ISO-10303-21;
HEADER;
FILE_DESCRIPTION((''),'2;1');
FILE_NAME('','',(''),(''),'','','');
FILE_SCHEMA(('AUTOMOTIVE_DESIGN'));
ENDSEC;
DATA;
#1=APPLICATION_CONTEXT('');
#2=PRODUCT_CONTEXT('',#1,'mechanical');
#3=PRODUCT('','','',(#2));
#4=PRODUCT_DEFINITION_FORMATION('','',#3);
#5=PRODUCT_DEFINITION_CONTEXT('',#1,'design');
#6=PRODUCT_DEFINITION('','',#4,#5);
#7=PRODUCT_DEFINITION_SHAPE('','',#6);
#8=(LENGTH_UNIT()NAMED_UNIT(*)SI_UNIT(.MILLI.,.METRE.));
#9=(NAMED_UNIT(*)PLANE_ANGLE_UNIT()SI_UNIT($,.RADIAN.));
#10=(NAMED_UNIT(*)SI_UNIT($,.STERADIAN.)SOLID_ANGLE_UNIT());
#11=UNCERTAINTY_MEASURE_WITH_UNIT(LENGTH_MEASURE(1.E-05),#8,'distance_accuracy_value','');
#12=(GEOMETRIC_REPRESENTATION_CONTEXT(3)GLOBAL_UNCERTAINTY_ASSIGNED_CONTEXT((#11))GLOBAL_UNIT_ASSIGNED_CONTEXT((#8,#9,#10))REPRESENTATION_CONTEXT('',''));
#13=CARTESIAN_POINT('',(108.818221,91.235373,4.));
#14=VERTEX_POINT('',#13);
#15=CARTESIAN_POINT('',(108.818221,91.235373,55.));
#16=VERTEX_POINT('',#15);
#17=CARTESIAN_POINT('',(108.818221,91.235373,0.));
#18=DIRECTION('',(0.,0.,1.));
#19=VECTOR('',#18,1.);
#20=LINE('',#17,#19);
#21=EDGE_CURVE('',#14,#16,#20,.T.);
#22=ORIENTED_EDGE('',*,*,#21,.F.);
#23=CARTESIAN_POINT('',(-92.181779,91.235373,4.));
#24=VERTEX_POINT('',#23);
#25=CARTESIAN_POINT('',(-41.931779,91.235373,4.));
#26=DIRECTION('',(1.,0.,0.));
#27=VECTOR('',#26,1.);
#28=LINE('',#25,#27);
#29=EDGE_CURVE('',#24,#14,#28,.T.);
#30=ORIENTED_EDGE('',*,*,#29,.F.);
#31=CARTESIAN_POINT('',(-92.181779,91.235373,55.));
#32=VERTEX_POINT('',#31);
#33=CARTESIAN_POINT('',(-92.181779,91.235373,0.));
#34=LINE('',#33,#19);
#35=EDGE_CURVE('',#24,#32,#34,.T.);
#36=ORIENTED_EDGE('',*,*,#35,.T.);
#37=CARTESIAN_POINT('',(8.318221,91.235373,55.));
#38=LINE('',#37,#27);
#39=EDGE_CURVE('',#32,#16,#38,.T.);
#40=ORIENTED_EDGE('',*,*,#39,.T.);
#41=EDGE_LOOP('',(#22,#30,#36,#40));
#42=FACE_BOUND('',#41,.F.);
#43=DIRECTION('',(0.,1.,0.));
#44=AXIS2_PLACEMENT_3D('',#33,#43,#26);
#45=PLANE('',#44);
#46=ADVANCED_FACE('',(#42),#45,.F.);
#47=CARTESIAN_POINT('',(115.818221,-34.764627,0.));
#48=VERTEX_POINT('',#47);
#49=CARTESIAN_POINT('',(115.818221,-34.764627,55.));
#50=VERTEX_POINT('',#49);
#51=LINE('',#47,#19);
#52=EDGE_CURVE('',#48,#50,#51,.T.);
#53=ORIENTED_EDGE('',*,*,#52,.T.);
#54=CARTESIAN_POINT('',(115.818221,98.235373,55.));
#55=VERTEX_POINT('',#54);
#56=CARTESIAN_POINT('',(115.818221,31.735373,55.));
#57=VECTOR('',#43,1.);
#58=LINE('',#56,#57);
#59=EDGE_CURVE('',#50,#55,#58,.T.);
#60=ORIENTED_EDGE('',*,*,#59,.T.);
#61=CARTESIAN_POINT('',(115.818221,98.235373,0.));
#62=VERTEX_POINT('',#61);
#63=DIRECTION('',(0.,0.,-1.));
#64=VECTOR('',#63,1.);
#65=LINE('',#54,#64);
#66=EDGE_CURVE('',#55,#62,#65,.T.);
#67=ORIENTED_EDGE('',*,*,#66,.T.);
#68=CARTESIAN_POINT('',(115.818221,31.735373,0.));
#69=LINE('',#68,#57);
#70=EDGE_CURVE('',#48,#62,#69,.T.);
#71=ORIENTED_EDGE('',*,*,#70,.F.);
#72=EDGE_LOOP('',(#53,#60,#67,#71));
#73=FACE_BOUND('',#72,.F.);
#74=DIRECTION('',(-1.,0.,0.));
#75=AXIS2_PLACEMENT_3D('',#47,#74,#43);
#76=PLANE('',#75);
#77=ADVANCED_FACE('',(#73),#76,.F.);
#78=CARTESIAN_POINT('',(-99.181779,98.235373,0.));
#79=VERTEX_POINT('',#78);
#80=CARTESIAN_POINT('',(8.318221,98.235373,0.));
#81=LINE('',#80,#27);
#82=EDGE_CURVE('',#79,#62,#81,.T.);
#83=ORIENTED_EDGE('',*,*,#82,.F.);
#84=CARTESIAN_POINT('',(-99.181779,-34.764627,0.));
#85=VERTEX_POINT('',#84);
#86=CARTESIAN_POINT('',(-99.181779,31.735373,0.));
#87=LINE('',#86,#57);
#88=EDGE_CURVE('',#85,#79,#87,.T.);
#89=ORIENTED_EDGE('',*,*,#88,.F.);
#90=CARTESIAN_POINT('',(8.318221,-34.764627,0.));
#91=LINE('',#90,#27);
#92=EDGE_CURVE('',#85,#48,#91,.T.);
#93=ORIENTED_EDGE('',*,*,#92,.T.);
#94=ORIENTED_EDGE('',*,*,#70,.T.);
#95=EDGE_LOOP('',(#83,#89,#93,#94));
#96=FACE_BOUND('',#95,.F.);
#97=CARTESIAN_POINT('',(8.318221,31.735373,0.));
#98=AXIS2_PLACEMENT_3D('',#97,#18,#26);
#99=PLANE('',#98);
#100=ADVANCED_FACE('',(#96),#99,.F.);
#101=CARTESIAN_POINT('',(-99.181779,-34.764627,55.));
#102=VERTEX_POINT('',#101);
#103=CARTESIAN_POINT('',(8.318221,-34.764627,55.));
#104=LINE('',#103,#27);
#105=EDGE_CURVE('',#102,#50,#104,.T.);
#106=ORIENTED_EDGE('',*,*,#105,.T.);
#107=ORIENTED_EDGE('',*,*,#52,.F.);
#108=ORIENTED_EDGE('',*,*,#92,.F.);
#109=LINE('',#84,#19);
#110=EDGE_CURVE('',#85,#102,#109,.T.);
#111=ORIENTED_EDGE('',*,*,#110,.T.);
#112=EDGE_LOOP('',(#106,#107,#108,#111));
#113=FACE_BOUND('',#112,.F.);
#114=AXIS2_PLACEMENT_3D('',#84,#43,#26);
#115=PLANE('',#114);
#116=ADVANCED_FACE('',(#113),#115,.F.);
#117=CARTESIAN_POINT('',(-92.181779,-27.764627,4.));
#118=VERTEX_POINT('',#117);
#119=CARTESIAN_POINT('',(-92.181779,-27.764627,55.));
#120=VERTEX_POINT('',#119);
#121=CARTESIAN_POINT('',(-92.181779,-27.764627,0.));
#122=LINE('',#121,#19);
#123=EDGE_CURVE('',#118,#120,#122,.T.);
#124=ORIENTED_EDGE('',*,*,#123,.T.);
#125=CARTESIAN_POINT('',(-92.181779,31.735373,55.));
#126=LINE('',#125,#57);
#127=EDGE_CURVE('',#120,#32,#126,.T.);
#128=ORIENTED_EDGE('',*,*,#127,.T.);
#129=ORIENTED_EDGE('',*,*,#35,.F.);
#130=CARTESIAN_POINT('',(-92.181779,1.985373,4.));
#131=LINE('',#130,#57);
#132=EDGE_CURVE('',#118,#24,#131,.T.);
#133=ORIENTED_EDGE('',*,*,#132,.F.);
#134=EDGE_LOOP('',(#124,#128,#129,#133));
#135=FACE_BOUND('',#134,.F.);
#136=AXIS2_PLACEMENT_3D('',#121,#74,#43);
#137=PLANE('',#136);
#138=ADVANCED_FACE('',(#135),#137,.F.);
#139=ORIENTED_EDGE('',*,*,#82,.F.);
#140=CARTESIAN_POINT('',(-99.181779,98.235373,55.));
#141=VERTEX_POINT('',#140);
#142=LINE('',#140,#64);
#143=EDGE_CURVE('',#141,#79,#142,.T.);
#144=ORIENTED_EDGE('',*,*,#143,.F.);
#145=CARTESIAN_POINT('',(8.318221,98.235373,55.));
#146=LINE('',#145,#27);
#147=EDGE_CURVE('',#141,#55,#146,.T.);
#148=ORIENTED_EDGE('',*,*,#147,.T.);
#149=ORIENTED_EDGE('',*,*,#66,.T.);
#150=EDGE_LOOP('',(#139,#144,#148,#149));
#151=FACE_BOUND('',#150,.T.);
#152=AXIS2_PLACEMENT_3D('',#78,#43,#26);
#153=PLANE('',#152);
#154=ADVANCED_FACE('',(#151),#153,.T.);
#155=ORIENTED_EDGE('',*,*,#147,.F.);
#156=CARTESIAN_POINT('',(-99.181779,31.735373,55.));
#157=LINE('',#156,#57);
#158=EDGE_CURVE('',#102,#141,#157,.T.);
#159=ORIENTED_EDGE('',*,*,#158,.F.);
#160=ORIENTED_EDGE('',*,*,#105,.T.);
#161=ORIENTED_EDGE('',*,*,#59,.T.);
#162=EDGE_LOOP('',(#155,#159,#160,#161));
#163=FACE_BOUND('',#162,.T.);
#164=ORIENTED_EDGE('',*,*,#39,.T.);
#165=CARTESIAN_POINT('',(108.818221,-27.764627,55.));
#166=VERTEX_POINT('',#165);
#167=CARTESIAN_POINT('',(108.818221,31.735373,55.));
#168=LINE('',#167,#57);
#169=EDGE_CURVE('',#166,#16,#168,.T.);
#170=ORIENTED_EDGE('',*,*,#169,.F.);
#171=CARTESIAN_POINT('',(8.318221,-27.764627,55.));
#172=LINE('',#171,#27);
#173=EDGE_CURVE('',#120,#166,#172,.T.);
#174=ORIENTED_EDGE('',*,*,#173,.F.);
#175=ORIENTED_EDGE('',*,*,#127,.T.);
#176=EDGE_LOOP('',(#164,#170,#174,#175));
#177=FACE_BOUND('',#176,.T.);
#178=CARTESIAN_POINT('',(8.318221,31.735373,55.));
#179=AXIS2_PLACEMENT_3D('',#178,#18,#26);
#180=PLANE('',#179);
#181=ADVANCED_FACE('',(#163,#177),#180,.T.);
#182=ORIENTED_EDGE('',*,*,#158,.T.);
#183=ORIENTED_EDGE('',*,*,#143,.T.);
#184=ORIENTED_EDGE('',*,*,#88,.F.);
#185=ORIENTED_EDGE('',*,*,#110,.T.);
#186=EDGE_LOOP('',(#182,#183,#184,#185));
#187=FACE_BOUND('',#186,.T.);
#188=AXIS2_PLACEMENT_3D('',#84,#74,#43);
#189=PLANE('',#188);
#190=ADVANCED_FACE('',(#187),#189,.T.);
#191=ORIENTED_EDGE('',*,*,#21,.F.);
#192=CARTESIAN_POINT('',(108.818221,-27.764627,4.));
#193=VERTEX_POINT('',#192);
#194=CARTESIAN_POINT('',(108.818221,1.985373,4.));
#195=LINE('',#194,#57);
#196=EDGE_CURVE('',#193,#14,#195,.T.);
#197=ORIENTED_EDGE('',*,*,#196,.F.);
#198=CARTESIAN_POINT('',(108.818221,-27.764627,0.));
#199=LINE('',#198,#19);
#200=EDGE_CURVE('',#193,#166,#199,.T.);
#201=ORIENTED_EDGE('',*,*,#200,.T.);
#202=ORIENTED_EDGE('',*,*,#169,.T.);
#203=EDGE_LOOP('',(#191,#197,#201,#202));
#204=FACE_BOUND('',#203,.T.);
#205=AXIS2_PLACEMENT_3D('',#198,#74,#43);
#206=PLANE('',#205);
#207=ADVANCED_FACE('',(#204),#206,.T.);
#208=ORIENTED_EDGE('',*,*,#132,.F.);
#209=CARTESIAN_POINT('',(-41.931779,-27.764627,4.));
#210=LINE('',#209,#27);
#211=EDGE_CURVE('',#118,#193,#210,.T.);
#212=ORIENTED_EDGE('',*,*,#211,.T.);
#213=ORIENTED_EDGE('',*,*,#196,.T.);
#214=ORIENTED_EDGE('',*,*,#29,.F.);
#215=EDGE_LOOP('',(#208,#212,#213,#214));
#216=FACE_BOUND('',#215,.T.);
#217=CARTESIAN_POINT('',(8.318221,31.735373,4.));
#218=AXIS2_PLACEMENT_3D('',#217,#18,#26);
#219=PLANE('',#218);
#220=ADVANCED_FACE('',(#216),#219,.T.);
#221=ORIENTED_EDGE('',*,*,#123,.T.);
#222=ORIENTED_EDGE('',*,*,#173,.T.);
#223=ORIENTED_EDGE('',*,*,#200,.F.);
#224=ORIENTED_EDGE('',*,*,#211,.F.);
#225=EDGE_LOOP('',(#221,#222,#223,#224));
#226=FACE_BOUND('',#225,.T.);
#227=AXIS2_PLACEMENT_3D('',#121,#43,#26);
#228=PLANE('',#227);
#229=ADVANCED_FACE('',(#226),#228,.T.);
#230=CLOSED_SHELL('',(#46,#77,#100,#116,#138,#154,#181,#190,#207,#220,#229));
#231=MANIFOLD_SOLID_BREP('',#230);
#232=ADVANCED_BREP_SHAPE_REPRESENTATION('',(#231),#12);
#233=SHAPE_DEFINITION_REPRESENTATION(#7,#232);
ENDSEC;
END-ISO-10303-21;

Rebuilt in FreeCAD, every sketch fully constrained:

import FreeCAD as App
import Part
import Sketcher

V = App.Vector

doc = App.newDocument("Part")
params = doc.addObject("Spreadsheet::Sheet", "Params")
for row, (alias, value) in enumerate([
    ("sketch1_width", "215 mm"),
    ("sketch1_width2", "201 mm"),
    ("sketch1_height", "133 mm"),
    ("sketch1_height2", "119 mm"),
    ("pad1_length", "55 mm"),
    ("sketch2_width", "215 mm"),
    ("sketch2_height", "133 mm"),
    ("pad2_length", "4 mm"),
], start=1):
    params.set(f"A{row}", alias)
    params.set(f"B{row}", "=" + value)
    params.setAlias(f"B{row}", alias)

body = doc.addObject("PartDesign::Body", "Body")

sketch1 = body.newObject("Sketcher::SketchObject", "Sketch")
sketch1.AttachmentSupport = (doc.getObject("XY_Plane"), [""])
sketch1.MapMode = "FlatFace"
sketch1.addGeometry([
    Part.LineSegment(V(-99.181779, 98.235373, 0), V(-99.181779, -34.764627, 0)),
    Part.LineSegment(V(-99.181779, -34.764627, 0), V(115.818221, -34.764627, 0)),
    Part.LineSegment(V(115.818221, -34.764627, 0), V(115.818221, 98.235373, 0)),
    Part.LineSegment(V(115.818221, 98.235373, 0), V(-99.181779, 98.235373, 0)),
    Part.LineSegment(V(108.818221, -27.764627, 0), V(-92.181779, -27.764627, 0)),
    Part.LineSegment(V(-92.181779, -27.764627, 0), V(-92.181779, 91.235373, 0)),
    Part.LineSegment(V(-92.181779, 91.235373, 0), V(108.818221, 91.235373, 0)),
    Part.LineSegment(V(108.818221, 91.235373, 0), V(108.818221, -27.764627, 0)),
], False)
sketch1.addConstraint([
    Sketcher.Constraint("Coincident", 0, 2, 1, 1),
    Sketcher.Constraint("Coincident", 1, 2, 2, 1),
    Sketcher.Constraint("Coincident", 2, 2, 3, 1),
    Sketcher.Constraint("Coincident", 3, 2, 0, 1),
    Sketcher.Constraint("Coincident", 4, 2, 5, 1),
    Sketcher.Constraint("Coincident", 5, 2, 6, 1),
    Sketcher.Constraint("Coincident", 6, 2, 7, 1),
    Sketcher.Constraint("Coincident", 7, 2, 4, 1),
    Sketcher.Constraint("Vertical", 0),
    Sketcher.Constraint("Horizontal", 1),
    Sketcher.Constraint("Vertical", 2),
    Sketcher.Constraint("Horizontal", 3),
    Sketcher.Constraint("Horizontal", 4),
    Sketcher.Constraint("Vertical", 5),
    Sketcher.Constraint("Horizontal", 6),
    Sketcher.Constraint("Vertical", 7),
    Sketcher.Constraint("DistanceX", 1, 1, 1, 2, 215.0),
    Sketcher.Constraint("DistanceX", 4, 2, 4, 1, 201.0),
    Sketcher.Constraint("DistanceY", 0, 2, 0, 1, 133.0),
    Sketcher.Constraint("DistanceY", 5, 1, 5, 2, 119.0),
    Sketcher.Constraint("DistanceX", 0, 2, 4, 2, 7.0),
    Sketcher.Constraint("DistanceY", 0, 2, 4, 2, 7.0),
    Sketcher.Constraint("DistanceX", 0, 2, -1, 1, 99.181779),
    Sketcher.Constraint("DistanceY", 0, 2, -1, 1, 34.764627),
])
sketch1.setExpression("Constraints[16]", "Params.sketch1_width")
sketch1.setExpression("Constraints[17]", "Params.sketch1_width2")
sketch1.setExpression("Constraints[18]", "Params.sketch1_height")
sketch1.setExpression("Constraints[19]", "Params.sketch1_height2")
pad1 = body.newObject("PartDesign::Pad", "Pad")
pad1.Profile = sketch1
pad1.setExpression("Length", "Params.pad1_length")

sketch2 = body.newObject("Sketcher::SketchObject", "Sketch001")
sketch2.AttachmentSupport = (doc.getObject("XY_Plane"), [""])
sketch2.MapMode = "FlatFace"
sketch2.addGeometry([
    Part.LineSegment(V(-99.181779, 98.235373, 0), V(-99.181779, -34.764627, 0)),
    Part.LineSegment(V(-99.181779, -34.764627, 0), V(115.818221, -34.764627, 0)),
    Part.LineSegment(V(115.818221, -34.764627, 0), V(115.818221, 98.235373, 0)),
    Part.LineSegment(V(115.818221, 98.235373, 0), V(-99.181779, 98.235373, 0)),
], False)
sketch2.addConstraint([
    Sketcher.Constraint("Coincident", 0, 2, 1, 1),
    Sketcher.Constraint("Coincident", 1, 2, 2, 1),
    Sketcher.Constraint("Coincident", 2, 2, 3, 1),
    Sketcher.Constraint("Coincident", 3, 2, 0, 1),
    Sketcher.Constraint("Vertical", 0),
    Sketcher.Constraint("Horizontal", 1),
    Sketcher.Constraint("Vertical", 2),
    Sketcher.Constraint("Horizontal", 3),
    Sketcher.Constraint("DistanceX", 1, 1, 1, 2, 215.0),
    Sketcher.Constraint("DistanceY", 0, 2, 0, 1, 133.0),
    Sketcher.Constraint("DistanceX", 0, 2, -1, 1, 99.181779),
    Sketcher.Constraint("DistanceY", 0, 2, -1, 1, 34.764627),
])
sketch2.setExpression("Constraints[8]", "Params.sketch2_width")
sketch2.setExpression("Constraints[9]", "Params.sketch2_height")
pad2 = body.newObject("PartDesign::Pad", "Pad001")
pad2.Profile = sketch2
pad2.setExpression("Length", "Params.pad2_length")

doc.recompute()
